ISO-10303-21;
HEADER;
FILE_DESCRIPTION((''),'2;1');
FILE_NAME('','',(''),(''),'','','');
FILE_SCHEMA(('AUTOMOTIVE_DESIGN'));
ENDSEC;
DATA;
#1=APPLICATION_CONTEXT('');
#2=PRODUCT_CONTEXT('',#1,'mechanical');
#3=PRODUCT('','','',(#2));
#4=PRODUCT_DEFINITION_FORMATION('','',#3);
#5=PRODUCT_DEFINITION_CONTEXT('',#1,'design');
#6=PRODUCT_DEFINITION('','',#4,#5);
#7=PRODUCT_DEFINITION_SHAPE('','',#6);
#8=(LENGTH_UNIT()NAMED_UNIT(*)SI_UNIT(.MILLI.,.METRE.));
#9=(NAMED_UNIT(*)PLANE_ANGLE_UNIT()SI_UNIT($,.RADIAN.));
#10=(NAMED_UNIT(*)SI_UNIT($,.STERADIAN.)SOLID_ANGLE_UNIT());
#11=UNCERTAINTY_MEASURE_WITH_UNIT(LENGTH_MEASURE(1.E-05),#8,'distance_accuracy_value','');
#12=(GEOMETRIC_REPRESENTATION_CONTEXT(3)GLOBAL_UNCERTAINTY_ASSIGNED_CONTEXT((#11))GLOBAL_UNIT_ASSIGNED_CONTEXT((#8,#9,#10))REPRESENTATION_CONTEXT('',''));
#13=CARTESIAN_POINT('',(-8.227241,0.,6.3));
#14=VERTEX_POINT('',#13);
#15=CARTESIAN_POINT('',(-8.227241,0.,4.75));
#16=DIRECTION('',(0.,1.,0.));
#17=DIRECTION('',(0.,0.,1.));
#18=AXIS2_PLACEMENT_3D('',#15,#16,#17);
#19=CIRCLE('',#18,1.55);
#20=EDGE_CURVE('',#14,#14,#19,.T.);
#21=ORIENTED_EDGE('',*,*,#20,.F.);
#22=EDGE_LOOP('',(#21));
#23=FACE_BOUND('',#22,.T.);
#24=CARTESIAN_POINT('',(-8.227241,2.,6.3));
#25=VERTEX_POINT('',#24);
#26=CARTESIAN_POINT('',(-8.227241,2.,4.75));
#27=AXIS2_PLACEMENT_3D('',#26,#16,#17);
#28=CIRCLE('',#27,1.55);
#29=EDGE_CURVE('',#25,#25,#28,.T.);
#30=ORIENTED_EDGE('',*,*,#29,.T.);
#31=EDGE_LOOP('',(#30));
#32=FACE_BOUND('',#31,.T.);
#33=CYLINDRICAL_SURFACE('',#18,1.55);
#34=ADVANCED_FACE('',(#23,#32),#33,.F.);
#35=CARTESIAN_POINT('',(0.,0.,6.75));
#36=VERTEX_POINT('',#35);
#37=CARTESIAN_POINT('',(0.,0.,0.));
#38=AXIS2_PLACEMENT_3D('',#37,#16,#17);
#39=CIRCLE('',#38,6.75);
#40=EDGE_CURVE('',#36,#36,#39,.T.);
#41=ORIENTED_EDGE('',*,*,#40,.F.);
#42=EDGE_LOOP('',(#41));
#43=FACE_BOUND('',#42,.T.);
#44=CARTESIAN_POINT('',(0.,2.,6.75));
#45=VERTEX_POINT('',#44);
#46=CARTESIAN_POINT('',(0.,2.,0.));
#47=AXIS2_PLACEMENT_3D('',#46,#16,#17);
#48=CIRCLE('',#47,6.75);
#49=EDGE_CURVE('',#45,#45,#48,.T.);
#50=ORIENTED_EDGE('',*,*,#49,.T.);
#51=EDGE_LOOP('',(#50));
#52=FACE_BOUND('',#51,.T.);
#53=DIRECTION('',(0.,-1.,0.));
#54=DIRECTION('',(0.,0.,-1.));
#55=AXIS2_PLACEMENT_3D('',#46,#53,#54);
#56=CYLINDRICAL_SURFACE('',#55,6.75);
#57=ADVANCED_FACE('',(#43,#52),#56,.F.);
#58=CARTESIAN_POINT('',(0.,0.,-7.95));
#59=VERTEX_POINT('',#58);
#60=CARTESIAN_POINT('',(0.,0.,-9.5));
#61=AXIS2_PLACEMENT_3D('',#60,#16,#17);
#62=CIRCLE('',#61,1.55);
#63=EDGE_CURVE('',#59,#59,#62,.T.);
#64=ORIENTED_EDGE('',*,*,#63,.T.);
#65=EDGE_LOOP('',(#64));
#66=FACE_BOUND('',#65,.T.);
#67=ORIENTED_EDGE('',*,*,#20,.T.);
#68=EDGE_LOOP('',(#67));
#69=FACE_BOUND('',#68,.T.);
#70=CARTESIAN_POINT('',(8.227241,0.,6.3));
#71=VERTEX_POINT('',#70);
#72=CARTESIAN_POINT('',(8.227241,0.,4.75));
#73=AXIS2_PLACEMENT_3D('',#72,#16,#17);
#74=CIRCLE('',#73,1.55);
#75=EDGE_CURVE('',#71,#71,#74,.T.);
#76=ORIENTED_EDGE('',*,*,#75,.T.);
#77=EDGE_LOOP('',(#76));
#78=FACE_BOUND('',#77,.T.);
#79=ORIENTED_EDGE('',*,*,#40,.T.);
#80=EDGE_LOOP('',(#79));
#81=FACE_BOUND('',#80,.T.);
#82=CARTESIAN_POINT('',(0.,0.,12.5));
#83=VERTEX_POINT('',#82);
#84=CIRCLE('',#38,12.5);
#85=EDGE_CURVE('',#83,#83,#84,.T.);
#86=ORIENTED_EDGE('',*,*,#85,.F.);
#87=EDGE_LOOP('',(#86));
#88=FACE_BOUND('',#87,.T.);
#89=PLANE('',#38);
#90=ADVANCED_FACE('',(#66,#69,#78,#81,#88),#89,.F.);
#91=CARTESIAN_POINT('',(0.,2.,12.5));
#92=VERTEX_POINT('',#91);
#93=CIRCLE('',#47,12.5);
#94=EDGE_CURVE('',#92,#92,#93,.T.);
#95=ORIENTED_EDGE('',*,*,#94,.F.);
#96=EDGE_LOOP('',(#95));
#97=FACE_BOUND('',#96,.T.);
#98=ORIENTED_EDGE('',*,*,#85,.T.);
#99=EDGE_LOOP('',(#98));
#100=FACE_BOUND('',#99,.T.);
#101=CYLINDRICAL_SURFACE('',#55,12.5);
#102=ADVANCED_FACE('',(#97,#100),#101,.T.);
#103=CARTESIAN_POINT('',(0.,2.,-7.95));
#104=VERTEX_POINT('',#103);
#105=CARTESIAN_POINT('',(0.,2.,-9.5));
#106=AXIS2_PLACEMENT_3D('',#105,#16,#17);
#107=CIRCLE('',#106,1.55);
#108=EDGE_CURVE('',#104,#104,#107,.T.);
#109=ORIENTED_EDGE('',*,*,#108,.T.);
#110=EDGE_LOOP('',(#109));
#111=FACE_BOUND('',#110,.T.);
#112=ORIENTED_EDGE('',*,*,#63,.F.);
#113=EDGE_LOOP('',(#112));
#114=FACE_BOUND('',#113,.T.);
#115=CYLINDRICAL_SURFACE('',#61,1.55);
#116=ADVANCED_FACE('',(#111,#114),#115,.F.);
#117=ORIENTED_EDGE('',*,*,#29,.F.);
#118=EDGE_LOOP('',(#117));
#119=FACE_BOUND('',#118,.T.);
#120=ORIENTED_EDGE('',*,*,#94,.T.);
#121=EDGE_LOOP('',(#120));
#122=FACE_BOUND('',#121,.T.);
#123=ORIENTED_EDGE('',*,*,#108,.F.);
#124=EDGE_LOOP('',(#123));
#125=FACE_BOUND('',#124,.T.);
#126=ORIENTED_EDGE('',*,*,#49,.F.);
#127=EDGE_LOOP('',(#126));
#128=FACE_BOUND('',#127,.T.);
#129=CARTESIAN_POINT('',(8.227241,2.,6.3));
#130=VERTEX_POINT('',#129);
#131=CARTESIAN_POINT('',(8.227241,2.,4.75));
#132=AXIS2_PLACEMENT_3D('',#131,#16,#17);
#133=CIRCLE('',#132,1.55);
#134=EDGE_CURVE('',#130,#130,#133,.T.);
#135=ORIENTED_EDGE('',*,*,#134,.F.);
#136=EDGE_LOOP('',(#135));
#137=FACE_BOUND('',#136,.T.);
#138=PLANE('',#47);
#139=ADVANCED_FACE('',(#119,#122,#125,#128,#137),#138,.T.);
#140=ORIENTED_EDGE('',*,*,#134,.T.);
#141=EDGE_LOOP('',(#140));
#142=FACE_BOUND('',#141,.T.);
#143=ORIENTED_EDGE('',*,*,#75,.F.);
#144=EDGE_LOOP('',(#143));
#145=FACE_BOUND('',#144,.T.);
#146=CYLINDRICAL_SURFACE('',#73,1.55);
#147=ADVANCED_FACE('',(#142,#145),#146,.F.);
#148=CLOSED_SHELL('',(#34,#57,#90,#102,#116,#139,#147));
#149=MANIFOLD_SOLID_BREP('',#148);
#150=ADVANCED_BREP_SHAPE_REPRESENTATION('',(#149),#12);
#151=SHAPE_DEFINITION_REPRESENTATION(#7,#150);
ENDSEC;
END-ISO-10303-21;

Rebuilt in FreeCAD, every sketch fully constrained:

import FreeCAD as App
import Part
import Sketcher
from FreeCAD import Vector

doc = App.newDocument("Part")
body = doc.addObject("PartDesign::Body", "Body")

# Sketch on XZ plane
sketch1 = doc.addObject("Sketcher::SketchObject", "Sketch")
body.addObject(sketch1)
sketch1.AttachmentSupport = (doc.XZ_Plane, [""])
sketch1.MapMode = "FlatFace"
sketch1.addGeometry([
    Part.Circle(Vector(0, 0, 0), Vector(0, 0, 1), 12.5),
    Part.Circle(Vector(0, 0, 0), Vector(0, 0, 1), 6.75),
], False)
sketch1.addConstraint([
    Sketcher.Constraint("Coincident", 0, 3, -1, 1),
    Sketcher.Constraint("Coincident", 1, 3, -1, 1),
    Sketcher.Constraint("Diameter", 0, 25.0),
    Sketcher.Constraint("Diameter", 1, 13.5),
])
pad1 = doc.addObject("PartDesign::Pad", "Pad")
body.addObject(pad1)
pad1.Profile = sketch1
pad1.Length = 2
pad1.Reversed = True

# Sketch on XZ plane
sketch2 = doc.addObject("Sketcher::SketchObject", "Sketch001")
body.addObject(sketch2)
sketch2.AttachmentSupport = (doc.XZ_Plane, [""])
sketch2.MapMode = "FlatFace"
sketch2.AttachmentOffset = App.Placement(Vector(0, 0, -2), App.Rotation())
sketch2.addGeometry([
    Part.Circle(Vector(0, -9.5, 0), Vector(0, 0, 1), 1.55),
    Part.Circle(Vector(8.227241, 4.75, 0), Vector(0, 0, 1), 1.55),
    Part.Circle(Vector(-8.227241, 4.75, 0), Vector(0, 0, 1), 1.55),
], False)
sketch2.addConstraint([
    Sketcher.Constraint("Equal", 0, 1),
    Sketcher.Constraint("Equal", 1, 2),
    Sketcher.Constraint("Symmetric", 1, 3, 2, 3, -2),
    Sketcher.Constraint("PointOnObject", 0, 3, -2),
    Sketcher.Constraint("Diameter", 0, 3.1),
    Sketcher.Constraint("DistanceY", 0, 3, -1, 1, 9.5),
    Sketcher.Constraint("DistanceY", -1, 1, 1, 3, 4.75),
    Sketcher.Constraint("DistanceX", -1, 1, 1, 3, 8.227241),
])
pocket1 = doc.addObject("PartDesign::Pocket", "Pocket")
body.addObject(pocket1)
pocket1.Profile = sketch2
pocket1.Type = "ThroughAll"
pocket1.Reversed = True

doc.recompute()
